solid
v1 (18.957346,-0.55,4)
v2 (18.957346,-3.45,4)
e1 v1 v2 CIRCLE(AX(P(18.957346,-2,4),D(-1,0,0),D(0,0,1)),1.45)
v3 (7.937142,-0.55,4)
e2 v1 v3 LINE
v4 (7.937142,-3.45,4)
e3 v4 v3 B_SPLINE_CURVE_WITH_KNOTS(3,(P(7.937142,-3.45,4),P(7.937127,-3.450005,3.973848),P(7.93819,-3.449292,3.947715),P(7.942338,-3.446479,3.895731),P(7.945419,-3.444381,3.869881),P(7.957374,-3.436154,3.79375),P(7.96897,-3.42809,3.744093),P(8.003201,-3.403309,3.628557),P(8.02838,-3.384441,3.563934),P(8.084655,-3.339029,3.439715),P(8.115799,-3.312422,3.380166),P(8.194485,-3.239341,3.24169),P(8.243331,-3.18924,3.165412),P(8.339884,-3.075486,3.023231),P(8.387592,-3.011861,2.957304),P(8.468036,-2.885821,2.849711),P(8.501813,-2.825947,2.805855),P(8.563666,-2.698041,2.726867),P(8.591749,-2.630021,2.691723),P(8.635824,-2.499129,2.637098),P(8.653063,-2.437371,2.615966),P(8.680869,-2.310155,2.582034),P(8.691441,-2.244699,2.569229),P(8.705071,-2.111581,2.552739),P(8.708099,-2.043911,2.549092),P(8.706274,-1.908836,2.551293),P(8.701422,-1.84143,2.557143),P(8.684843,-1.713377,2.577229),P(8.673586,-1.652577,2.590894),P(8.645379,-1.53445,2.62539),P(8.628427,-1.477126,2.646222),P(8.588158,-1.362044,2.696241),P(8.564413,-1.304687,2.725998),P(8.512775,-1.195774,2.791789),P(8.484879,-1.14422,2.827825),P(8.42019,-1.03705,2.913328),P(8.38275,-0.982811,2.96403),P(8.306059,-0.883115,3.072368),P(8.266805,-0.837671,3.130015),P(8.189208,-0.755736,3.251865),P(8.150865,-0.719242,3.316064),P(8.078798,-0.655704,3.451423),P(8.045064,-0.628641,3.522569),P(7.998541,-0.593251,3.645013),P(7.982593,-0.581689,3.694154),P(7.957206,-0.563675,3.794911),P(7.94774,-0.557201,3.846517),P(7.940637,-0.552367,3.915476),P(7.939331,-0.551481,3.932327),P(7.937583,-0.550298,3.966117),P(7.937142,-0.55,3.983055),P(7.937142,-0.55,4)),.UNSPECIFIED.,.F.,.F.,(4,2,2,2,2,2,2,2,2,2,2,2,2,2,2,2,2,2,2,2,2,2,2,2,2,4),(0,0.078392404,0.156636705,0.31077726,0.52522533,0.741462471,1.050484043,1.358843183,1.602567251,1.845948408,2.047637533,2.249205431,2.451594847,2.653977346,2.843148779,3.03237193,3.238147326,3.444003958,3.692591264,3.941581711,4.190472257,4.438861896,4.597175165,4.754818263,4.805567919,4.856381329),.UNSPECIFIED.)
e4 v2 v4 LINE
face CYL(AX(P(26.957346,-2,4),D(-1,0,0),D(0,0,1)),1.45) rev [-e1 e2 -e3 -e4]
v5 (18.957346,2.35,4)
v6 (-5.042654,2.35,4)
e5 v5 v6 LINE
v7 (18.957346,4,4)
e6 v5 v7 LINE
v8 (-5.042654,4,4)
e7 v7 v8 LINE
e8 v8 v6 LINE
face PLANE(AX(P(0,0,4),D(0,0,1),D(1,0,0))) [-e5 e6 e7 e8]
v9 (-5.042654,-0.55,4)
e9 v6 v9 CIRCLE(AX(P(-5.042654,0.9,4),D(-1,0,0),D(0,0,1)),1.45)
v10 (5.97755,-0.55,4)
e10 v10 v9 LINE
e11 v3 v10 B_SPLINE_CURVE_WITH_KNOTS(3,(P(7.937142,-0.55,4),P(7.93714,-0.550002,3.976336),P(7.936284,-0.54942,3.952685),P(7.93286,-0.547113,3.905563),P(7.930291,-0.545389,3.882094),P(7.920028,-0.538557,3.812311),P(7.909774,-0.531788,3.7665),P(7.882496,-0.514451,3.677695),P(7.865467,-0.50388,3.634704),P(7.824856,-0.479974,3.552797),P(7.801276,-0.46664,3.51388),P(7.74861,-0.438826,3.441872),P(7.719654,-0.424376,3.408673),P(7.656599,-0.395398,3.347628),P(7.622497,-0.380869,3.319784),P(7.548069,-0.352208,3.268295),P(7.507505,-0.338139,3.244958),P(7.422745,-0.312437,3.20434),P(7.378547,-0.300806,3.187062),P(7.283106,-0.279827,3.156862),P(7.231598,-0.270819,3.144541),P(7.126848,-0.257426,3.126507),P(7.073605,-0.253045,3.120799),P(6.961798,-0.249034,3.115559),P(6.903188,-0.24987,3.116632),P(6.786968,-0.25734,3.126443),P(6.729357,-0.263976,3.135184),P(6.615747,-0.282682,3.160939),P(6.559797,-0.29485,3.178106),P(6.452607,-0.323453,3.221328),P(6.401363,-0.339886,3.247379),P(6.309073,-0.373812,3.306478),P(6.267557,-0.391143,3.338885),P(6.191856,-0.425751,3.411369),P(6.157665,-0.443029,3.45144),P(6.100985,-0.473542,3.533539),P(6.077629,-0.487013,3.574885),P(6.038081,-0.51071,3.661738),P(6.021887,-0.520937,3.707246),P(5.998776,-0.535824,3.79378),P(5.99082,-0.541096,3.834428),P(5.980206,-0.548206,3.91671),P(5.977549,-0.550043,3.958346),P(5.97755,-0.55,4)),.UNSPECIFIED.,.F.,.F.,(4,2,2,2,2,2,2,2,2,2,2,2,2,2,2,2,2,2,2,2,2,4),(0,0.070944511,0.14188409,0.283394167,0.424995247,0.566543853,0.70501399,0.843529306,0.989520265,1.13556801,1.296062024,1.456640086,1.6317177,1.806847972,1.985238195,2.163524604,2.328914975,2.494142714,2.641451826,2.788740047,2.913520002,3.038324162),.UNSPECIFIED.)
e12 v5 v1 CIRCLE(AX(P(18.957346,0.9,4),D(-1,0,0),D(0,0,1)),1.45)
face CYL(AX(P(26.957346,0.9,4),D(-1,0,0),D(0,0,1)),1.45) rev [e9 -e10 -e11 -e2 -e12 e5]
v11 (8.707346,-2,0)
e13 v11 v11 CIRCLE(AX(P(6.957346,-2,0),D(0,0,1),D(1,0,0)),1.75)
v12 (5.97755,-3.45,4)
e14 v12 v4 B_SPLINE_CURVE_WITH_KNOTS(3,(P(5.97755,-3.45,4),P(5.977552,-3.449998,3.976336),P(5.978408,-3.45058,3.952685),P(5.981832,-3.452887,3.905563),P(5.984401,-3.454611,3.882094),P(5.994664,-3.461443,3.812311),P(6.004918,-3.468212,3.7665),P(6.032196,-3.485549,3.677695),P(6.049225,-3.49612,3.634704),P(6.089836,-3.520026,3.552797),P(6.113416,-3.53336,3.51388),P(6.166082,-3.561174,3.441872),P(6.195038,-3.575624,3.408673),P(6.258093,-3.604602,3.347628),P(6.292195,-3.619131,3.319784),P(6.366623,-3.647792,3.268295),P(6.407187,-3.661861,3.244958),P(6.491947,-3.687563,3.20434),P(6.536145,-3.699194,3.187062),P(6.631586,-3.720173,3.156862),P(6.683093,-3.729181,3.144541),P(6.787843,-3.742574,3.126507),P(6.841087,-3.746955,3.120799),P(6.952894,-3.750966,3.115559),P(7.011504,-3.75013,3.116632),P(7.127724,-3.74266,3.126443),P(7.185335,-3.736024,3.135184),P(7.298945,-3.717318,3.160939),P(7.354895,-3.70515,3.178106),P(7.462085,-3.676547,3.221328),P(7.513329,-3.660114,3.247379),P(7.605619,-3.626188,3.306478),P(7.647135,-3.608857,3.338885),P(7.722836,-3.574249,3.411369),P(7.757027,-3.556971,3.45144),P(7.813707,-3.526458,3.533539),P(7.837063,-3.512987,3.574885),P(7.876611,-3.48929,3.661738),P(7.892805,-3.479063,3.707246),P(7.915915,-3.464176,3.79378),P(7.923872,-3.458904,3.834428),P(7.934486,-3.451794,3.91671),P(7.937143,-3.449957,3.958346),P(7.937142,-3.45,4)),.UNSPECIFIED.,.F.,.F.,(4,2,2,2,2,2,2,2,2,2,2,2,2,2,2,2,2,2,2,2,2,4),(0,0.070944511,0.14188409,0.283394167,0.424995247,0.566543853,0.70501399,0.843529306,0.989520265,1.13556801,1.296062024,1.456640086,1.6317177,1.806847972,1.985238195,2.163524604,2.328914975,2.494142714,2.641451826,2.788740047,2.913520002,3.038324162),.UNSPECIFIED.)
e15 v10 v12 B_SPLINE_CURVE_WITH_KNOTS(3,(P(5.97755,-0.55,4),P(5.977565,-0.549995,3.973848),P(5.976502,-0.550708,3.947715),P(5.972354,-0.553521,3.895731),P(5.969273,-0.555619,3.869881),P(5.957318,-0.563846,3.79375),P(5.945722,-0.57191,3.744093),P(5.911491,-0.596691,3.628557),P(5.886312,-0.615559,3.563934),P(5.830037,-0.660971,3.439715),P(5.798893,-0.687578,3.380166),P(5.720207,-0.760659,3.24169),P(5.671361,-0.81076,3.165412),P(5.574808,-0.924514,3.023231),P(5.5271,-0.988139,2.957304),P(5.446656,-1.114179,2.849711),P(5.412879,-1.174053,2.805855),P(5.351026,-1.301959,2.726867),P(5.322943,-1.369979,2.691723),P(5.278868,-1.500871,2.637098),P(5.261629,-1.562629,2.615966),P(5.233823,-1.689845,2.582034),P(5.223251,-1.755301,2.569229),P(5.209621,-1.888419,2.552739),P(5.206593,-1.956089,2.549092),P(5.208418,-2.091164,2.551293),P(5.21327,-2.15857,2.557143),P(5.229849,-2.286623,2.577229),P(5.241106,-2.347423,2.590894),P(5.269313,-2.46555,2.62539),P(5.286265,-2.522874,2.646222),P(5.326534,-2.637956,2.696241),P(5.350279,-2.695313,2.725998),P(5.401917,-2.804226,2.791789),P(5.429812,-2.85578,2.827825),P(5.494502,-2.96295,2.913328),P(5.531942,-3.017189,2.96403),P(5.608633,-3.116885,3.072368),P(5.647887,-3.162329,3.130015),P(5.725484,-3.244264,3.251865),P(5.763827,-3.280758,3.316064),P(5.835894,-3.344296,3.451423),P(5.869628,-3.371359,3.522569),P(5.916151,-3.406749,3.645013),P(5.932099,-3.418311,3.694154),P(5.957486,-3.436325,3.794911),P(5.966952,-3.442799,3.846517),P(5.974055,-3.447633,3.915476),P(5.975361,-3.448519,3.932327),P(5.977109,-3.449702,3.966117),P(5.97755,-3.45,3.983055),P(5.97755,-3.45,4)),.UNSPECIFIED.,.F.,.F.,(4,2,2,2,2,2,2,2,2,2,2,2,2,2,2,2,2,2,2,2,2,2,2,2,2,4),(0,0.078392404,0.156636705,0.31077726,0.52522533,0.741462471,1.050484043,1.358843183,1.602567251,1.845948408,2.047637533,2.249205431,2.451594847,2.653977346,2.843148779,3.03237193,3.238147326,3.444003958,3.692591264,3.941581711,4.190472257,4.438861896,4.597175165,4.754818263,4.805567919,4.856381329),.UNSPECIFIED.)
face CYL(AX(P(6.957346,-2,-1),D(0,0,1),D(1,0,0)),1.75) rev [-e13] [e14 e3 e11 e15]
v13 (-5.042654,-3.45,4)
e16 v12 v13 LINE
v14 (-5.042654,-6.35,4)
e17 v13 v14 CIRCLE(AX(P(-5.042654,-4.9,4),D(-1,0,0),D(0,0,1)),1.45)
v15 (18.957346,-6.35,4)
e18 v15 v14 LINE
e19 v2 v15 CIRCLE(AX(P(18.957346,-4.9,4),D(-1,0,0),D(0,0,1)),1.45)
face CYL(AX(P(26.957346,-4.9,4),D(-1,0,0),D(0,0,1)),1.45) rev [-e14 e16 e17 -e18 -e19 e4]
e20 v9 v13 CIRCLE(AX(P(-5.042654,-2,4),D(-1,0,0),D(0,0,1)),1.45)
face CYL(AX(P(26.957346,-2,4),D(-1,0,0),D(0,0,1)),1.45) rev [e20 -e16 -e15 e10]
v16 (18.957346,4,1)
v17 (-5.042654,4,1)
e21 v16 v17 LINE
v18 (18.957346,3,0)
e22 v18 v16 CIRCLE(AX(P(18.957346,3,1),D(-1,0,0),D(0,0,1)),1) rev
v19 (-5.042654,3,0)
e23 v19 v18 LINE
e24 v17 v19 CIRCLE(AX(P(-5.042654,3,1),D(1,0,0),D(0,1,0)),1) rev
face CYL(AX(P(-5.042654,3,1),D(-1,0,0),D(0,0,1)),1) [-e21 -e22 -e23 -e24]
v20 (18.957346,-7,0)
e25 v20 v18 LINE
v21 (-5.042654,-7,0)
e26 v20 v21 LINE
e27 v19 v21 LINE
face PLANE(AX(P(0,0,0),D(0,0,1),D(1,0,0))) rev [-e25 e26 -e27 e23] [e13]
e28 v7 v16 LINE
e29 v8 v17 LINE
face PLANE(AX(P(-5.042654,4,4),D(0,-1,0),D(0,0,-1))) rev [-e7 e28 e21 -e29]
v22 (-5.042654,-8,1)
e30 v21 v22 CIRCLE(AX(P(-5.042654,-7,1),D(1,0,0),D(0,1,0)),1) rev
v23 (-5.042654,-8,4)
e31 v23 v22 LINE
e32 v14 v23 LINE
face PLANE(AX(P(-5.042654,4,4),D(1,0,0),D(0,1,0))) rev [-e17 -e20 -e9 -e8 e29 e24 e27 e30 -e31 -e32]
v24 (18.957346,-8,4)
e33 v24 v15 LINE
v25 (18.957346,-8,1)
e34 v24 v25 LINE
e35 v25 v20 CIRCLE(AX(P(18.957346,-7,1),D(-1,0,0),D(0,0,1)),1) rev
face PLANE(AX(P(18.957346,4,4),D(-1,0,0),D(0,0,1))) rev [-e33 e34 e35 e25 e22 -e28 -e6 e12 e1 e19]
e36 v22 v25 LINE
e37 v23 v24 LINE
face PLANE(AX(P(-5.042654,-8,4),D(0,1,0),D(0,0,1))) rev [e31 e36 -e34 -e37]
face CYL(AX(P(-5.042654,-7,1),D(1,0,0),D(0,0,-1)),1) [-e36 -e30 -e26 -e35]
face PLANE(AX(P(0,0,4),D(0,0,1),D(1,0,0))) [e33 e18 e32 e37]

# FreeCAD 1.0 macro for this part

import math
import FreeCAD as App
import Part
import Sketcher
Q = App.Units.Quantity


def edges_at(feature, points):
    """Names of the edges that pass closest to the given points."""
    edges = feature.Shape.Edges
    near = lambda p: min(range(len(edges)), key=lambda i: edges[i].distToShape(Part.Vertex(*p))[0])
    return sorted({f"Edge{near(p) + 1}" for p in points})

doc = App.newDocument("Part")
body = doc.addObject("PartDesign::Body", "Body")

sketch1 = body.newObject("Sketcher::SketchObject", "Sketch")
sketch1.AttachmentSupport = (doc.getObject("XY_Plane"), [""])
sketch1.MapMode = "FlatFace"
sketch1.addGeometry([
    Part.LineSegment(App.Vector(-5, 4, 0), App.Vector(-5, -8, 0)),
    Part.LineSegment(App.Vector(-5, -8, 0), App.Vector(19, -8, 0)),
    Part.LineSegment(App.Vector(19, -8, 0), App.Vector(19, 4, 0)),
    Part.LineSegment(App.Vector(19, 4, 0), App.Vector(-5, 4, 0)),
], False)
sketch1.addConstraint([
    Sketcher.Constraint("Coincident", 0, 2, 1, 1),
    Sketcher.Constraint("Coincident", 1, 2, 2, 1),
    Sketcher.Constraint("Coincident", 2, 2, 3, 1),
    Sketcher.Constraint("Coincident", 3, 2, 0, 1),
    Sketcher.Constraint("Vertical", 0),
    Sketcher.Constraint("Horizontal", 1),
    Sketcher.Constraint("Vertical", 2),
    Sketcher.Constraint("Horizontal", 3),
    Sketcher.Constraint("DistanceX", 1, 1, 1, 2, Q("24 mm")),
    Sketcher.Constraint("DistanceY", 0, 2, 0, 1, Q("12 mm")),
    Sketcher.Constraint("DistanceY", 0, 2, -1, 1, Q("8 mm")),
    Sketcher.Constraint("DistanceX", 0, 2, -1, 1, Q("5.042654 mm")),
])
pad1 = body.newObject("PartDesign::Pad", "Pad")
pad1.Profile = sketch1
pad1.Length = 4

sketch2 = body.newObject("Sketcher::SketchObject", "Sketch001")
sketch2.AttachmentSupport = (doc.getObject("XY_Plane"), [""])
sketch2.MapMode = "FlatFace"
sketch2.AttachmentOffset = App.Placement(App.Vector(0, 0, 4), App.Rotation())
sketch2.addGeometry(Part.Circle(App.Vector(7, -2, 0), App.Vector(0, 0, 1), 1.8), False)
sketch2.addConstraint([
    Sketcher.Constraint("Diameter", 0, Q("3.5 mm")),
    Sketcher.Constraint("DistanceY", 0, 3, -1, 1, Q("2 mm")),
    Sketcher.Constraint("DistanceX", -1, 1, 0, 3, Q("6.957346 mm")),
])
pocket1 = body.newObject("PartDesign::Pocket", "Pocket")
pocket1.Profile = sketch2
pocket1.Length = 5
doc.recompute()

fillet = body.newObject("PartDesign::Fillet", "Fillet")
fillet.Base = (pocket1, edges_at(pocket1, [(6.957, 4, 0), (6.957, -8, 0)]))
fillet.Radius = 1

sketch3 = body.newObject("Sketcher::SketchObject", "Sketch002")
sketch3.AttachmentSupport = (doc.getObject("YZ_Plane"), [""])
sketch3.MapMode = "FlatFace"
sketch3.AttachmentOffset = App.Placement(App.Vector(0, 0, -5.042654), App.Rotation())
sketch3.addGeometry([
    Part.ArcOfCircle(Part.Circle(App.Vector(-4.9, 4, 0), App.Vector(0, 0, 1), 1.4), math.radians(0), math.radians(90)),
    Part.ArcOfCircle(Part.Circle(App.Vector(-4.9, 4, 0), App.Vector(0, 0, 1), 1.4), math.radians(180), math.radians(360)),
    Part.ArcOfCircle(Part.Circle(App.Vector(-4.9, 4, 0), App.Vector(0, 0, 1), 1.4), math.radians(90), math.radians(180)),
    Part.ArcOfCircle(Part.Circle(App.Vector(-2, 4, 0), App.Vector(0, 0, 1), 1.4), math.radians(90), math.radians(180)),
    Part.ArcOfCircle(Part.Circle(App.Vector(-2, 4, 0), App.Vector(0, 0, 1), 1.4), math.radians(0), math.radians(90)),
    Part.ArcOfCircle(Part.Circle(App.Vector(-2, 4, 0), App.Vector(0, 0, 1), 1.4), math.radians(180), math.radians(360)),
    Part.ArcOfCircle(Part.Circle(App.Vector(0.9, 4, 0), App.Vector(0, 0, 1), 1.4), math.radians(180), math.radians(360)),
    Part.ArcOfCircle(Part.Circle(App.Vector(0.9, 4, 0), App.Vector(0, 0, 1), 1.4), math.radians(90), math.radians(180)),
    Part.ArcOfCircle(Part.Circle(App.Vector(0.9, 4, 0), App.Vector(0, 0, 1), 1.4), math.radians(0), math.radians(90)),
], False)
sketch3.addConstraint([
    Sketcher.Constraint("Tangent", 0, 1, 1, 2),
    Sketcher.Constraint("Tangent", 1, 1, 2, 2),
    Sketcher.Constraint("Tangent", 2, 1, 0, 2),
    Sketcher.Constraint("Tangent", 3, 1, 4, 2),
    Sketcher.Constraint("Tangent", 4, 1, 5, 2),
    Sketcher.Constraint("Tangent", 5, 1, 3, 2),
    Sketcher.Constraint("Tangent", 6, 1, 7, 2),
    Sketcher.Constraint("Tangent", 7, 1, 8, 2),
    Sketcher.Constraint("Tangent", 8, 1, 6, 2),
    Sketcher.Constraint("Coincident", 5, 1, 0, 1),
    Sketcher.Constraint("Coincident", 6, 1, 4, 1),
    Sketcher.Constraint("Equal", 2, 3),
    Sketcher.Constraint("Equal", 5, 6),
    Sketcher.Constraint("Horizontal", 2, 3, 3, 3),
    Sketcher.Constraint("Horizontal", 5, 3, 6, 3),
    Sketcher.Constraint("Horizontal", 8, 3, 0, 1),
    Sketcher.Constraint("Horizontal", 0, 1, 1, 1),
    Sketcher.Constraint("Horizontal", 1, 1, 4, 1),
    Sketcher.Constraint("Horizontal", 6, 1, 8, 1),
    Sketcher.Constraint("Vertical", 1, 3, 2, 1),
    Sketcher.Constraint("Vertical", 5, 3, 3, 1),
    Sketcher.Constraint("Vertical", 8, 3, 7, 1),
    Sketcher.Constraint("Radius", 0, Q("1.45 mm")),
    Sketcher.Constraint("DistanceY", -1, 1, 0, 3, Q("4 mm")),
    Sketcher.Constraint("DistanceX", 3, 3, -1, 1, Q("2 mm")),
])
pocket2 = body.newObject("PartDesign::Pocket", "Pocket001")
pocket2.Profile = sketch3
pocket2.Length = 32
pocket2.Reversed = True

doc.recompute()
